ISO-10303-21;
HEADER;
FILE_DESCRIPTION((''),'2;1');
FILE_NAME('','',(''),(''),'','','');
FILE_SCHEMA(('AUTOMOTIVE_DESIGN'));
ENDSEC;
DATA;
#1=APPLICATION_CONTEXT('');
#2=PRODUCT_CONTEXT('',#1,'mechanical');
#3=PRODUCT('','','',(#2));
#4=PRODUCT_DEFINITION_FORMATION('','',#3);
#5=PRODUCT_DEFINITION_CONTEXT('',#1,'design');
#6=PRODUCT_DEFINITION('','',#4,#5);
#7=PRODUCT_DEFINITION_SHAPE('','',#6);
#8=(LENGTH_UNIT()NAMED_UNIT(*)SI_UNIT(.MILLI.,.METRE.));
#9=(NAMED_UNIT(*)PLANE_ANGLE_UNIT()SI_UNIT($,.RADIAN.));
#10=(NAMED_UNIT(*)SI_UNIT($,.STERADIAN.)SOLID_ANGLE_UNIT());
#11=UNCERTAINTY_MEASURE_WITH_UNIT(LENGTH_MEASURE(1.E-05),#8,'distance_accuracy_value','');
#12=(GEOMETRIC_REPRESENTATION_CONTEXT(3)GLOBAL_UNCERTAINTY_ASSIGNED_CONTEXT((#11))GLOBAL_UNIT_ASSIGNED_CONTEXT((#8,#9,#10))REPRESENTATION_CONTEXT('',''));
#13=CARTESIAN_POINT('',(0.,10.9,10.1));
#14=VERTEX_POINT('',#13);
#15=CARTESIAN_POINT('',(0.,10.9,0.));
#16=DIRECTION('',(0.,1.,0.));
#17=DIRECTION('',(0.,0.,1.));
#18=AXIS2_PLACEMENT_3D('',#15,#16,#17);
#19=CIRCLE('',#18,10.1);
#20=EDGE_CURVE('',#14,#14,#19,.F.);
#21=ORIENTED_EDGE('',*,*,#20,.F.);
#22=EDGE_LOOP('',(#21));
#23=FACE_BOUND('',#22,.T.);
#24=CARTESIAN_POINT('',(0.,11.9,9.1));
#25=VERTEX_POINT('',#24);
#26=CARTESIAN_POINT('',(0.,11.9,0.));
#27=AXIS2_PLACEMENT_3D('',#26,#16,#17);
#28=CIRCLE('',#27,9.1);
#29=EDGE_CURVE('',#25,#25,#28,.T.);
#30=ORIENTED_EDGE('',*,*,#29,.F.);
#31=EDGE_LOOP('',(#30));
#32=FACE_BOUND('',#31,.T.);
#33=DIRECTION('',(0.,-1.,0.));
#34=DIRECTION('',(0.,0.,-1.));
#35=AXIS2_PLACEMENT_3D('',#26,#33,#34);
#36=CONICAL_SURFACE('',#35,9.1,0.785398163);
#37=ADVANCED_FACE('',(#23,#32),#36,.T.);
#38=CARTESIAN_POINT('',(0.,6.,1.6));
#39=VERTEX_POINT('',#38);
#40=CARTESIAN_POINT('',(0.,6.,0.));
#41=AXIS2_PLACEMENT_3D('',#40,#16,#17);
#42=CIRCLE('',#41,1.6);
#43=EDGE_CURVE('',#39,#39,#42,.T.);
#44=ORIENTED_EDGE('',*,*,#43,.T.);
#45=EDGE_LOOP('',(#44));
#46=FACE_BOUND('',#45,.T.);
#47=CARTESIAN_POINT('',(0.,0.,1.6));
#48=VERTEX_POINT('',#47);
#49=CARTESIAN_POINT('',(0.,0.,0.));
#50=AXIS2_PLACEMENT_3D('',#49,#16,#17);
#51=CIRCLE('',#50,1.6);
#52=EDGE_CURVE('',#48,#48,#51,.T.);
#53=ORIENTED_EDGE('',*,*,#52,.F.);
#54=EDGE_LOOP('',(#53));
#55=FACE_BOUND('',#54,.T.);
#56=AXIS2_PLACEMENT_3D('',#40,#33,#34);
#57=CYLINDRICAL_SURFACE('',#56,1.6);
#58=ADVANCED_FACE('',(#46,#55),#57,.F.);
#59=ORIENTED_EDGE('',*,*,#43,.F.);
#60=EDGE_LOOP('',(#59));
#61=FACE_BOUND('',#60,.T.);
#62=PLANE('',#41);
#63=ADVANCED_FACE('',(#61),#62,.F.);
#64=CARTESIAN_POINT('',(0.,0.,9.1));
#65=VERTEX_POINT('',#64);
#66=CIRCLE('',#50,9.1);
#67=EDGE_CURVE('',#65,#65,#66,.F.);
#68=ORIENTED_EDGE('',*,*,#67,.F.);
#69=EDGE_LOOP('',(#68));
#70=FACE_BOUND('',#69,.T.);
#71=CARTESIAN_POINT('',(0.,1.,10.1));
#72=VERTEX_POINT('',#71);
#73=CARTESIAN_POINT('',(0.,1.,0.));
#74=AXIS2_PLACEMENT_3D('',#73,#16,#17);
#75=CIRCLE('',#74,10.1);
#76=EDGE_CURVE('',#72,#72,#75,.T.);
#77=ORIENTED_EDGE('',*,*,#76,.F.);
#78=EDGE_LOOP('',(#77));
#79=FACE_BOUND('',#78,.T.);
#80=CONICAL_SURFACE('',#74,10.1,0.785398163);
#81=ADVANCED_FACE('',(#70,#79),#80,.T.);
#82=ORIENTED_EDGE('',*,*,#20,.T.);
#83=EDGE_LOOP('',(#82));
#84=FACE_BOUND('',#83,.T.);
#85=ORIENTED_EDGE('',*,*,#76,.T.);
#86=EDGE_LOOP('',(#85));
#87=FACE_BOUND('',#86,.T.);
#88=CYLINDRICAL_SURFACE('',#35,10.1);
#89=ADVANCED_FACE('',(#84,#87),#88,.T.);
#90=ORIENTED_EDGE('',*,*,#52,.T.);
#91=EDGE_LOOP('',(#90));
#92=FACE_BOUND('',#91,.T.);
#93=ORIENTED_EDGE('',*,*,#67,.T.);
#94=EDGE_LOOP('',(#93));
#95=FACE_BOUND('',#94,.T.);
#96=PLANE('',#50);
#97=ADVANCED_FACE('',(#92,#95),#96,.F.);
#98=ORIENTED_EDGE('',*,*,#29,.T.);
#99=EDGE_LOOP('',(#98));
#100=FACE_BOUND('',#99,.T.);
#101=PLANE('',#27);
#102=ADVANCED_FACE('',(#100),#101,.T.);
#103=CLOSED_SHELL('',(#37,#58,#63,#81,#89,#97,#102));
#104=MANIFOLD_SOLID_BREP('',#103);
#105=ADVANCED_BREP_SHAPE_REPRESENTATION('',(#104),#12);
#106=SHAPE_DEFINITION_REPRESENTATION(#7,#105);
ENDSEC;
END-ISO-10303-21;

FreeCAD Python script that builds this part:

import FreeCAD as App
import Part
import Sketcher

V = App.Vector
Q = App.Units.Quantity


def edges_at(feature, points):
    """Names of the edges that pass closest to the given points."""
    edges = feature.Shape.Edges
    near = lambda p: min(range(len(edges)), key=lambda i: edges[i].distToShape(Part.Vertex(*p))[0])
    return sorted({f"Edge{near(p) + 1}" for p in points})

doc = App.newDocument("Part")
body = doc.addObject("PartDesign::Body", "Body")

sketch1 = doc.addObject("Sketcher::SketchObject", "Sketch")
body.addObject(sketch1)
sketch1.AttachmentSupport = (doc.XZ_Plane, [""])
sketch1.MapMode = "FlatFace"
sketch1.addGeometry(Part.Circle(V(0, 0, 0), V(0, 0, 1), 10), False)
sketch1.addConstraint(Sketcher.Constraint("Coincident", 0, 3, -1, 1))
sketch1.addConstraint(Sketcher.Constraint("Diameter", 0, Q("20.2 mm")))
pad1 = doc.addObject("PartDesign::Pad", "Pad")
body.addObject(pad1)
pad1.Profile = sketch1
pad1.Length = 11.9
pad1.Reversed = True

sketch2 = doc.addObject("Sketcher::SketchObject", "Sketch001")
body.addObject(sketch2)
sketch2.AttachmentSupport = (doc.XZ_Plane, [""])
sketch2.MapMode = "FlatFace"
sketch2.addGeometry(Part.Circle(V(0, 0, 0), V(0, 0, 1), 1.6), False)
sketch2.addConstraint(Sketcher.Constraint("Coincident", 0, 3, -1, 1))
sketch2.addConstraint(Sketcher.Constraint("Diameter", 0, Q("3.2 mm")))
pocket1 = doc.addObject("PartDesign::Pocket", "Pocket")
body.addObject(pocket1)
pocket1.Profile = sketch2
pocket1.Length = 6
doc.recompute()

chamfer = doc.addObject("PartDesign::Chamfer", "Chamfer")
body.addObject(chamfer)
chamfer.Base = (pocket1, edges_at(pocket1, [(0, 0, -10.1), (0, 11.9, -10.1)]))
chamfer.Size = 1

doc.recompute()
